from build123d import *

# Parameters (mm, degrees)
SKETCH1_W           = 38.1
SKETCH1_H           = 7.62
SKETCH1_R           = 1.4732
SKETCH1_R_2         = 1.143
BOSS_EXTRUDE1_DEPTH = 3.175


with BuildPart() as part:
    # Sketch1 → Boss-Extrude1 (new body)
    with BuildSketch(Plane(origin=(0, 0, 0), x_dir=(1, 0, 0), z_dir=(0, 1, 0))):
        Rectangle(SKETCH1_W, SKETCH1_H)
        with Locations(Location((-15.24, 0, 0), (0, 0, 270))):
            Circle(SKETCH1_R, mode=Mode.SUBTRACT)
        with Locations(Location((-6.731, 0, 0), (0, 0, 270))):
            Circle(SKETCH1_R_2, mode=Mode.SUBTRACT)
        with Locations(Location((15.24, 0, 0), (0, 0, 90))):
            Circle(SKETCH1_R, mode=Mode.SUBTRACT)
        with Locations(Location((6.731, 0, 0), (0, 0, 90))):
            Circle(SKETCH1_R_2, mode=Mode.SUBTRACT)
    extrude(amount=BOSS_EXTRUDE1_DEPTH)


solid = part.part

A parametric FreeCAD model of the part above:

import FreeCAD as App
import Part
import Sketcher
Q = App.Units.Quantity


def add_polygon(sketch, points):
    """Adds a closed chain of lines whose ends are joined by coincident constraints."""
    first, n = sketch.GeometryCount, len(points)
    for a, b in zip(points, points[1:] + points[:1]):
        sketch.addGeometry(Part.LineSegment(App.Vector(*a, 0), App.Vector(*b, 0)), False)
    for i in range(n):
        sketch.addConstraint(Sketcher.Constraint("Coincident", first + i, 2, first + (i + 1) % n, 1))

doc = App.newDocument("Part")
body = doc.addObject("PartDesign::Body", "Body")

sketch1 = body.newObject("Sketcher::SketchObject", "Sketch")
sketch1.AttachmentSupport = (doc.getObject("XZ_Plane"), [""])
sketch1.MapMode = "FlatFace"
add_polygon(sketch1, [(-19.05, -3.81), (-19.05, 3.81), (19.05, 3.81), (19.05, -3.81)])
sketch1.addGeometry(Part.Circle(App.Vector(-15.24, 0, 0), App.Vector(0, 0, 1), 1.4732), False)
sketch1.addGeometry(Part.Circle(App.Vector(-6.731, 0, 0), App.Vector(0, 0, 1), 1.143), False)
sketch1.addGeometry(Part.Circle(App.Vector(6.731, 0, 0), App.Vector(0, 0, 1), 1.143), False)
sketch1.addGeometry(Part.Circle(App.Vector(15.24, 0, 0), App.Vector(0, 0, 1), 1.4732), False)
sketch1.addConstraint([
    Sketcher.Constraint("Vertical", 0),
    Sketcher.Constraint("Horizontal", 1),
    Sketcher.Constraint("Vertical", 2),
    Sketcher.Constraint("Horizontal", 3),
    Sketcher.Constraint("Equal", 5, 6),
    Sketcher.Constraint("Equal", 4, 7),
    Sketcher.Constraint("Symmetric", 5, 3, 6, 3, -1, 1),
    Sketcher.Constraint("Symmetric", 4, 3, 7, 3, -1, 1),
    Sketcher.Constraint("Symmetric", 0, 2, 2, 2, -1, 1),
    Sketcher.Constraint("PointOnObject", 4, 3, -1),
    Sketcher.Constraint("PointOnObject", 5, 3, -1),
    Sketcher.Constraint("Diameter", 5, Q("0.09 in")),
    Sketcher.Constraint("Diameter", 4, Q("0.116 in")),
    Sketcher.Constraint("DistanceX", 1, 1, 1, 2, Q("1.5 in")),
    Sketcher.Constraint("DistanceY", 0, 1, 0, 2, Q("0.3 in")),
    Sketcher.Constraint("DistanceX", 4, 3, -1, 1, Q("0.6 in")),
    Sketcher.Constraint("DistanceX", 5, 3, 6, 3, Q("0.53 in")),
])
pad1 = body.newObject("PartDesign::Pad", "Pad")
pad1.Profile = sketch1
pad1.Length = Q("0.125 in")
pad1.Reversed = True

doc.recompute()
